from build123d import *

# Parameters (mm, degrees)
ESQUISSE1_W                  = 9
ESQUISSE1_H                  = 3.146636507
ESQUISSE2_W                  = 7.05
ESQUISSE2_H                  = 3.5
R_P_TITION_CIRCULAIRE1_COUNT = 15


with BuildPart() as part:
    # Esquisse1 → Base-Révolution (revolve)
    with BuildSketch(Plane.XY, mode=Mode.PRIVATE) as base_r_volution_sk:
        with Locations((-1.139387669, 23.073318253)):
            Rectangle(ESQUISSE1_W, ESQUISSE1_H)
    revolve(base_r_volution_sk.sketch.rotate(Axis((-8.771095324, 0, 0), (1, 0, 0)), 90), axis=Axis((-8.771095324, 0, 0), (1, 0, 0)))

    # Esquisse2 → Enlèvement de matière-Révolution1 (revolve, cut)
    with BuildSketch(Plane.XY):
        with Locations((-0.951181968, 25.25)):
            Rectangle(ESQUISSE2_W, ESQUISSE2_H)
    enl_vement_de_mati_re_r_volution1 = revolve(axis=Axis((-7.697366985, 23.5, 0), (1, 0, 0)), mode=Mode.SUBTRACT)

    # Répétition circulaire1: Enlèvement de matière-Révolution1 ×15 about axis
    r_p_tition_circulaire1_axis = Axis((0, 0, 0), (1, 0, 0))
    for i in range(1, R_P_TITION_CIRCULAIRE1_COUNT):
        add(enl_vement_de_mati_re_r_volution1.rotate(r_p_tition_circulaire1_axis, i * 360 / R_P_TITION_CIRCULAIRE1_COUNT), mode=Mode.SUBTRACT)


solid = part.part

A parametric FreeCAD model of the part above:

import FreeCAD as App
import Part
import Sketcher

V = App.Vector
Q = App.Units.Quantity


def add_polygon(sketch, points):
    """Adds a closed chain of lines whose ends are joined by coincident constraints."""
    first, n = sketch.GeometryCount, len(points)
    for a, b in zip(points, points[1:] + points[:1]):
        sketch.addGeometry(Part.LineSegment(App.Vector(*a, 0), App.Vector(*b, 0)), False)
    for i in range(n):
        sketch.addConstraint(Sketcher.Constraint("Coincident", first + i, 2, first + (i + 1) % n, 1))

doc = App.newDocument("Part")
body = doc.addObject("PartDesign::Body", "Body")

# Sketch on XY plane
sketch1 = doc.addObject("Sketcher::SketchObject", "Sketch")
body.addObject(sketch1)
sketch1.AttachmentSupport = (doc.XY_Plane, [""])
sketch1.MapMode = "FlatFace"
add_polygon(sketch1, [(-5.6, 24.6), (-5.6, 21.5), (3.4, 21.5), (3.4, 24.6)])  # lines 0-3
sketch1.addConstraint([
    Sketcher.Constraint("Vertical", 0),
    Sketcher.Constraint("Horizontal", 1),
    Sketcher.Constraint("Vertical", 2),
    Sketcher.Constraint("Horizontal", 3),
    Sketcher.Constraint("DistanceX", 1, 1, 1, 2, Q("9 mm")),
    Sketcher.Constraint("DistanceY", -1, 1, 0, 2, Q("21.5 mm")),
    Sketcher.Constraint("DistanceY", 0, 2, 0, 1, Q("3.146637 mm")),
    Sketcher.Constraint("DistanceX", 0, 2, -1, 1, Q("5.639388 mm")),
])
revolution = doc.addObject("PartDesign::Revolution", "Revolution")
body.addObject(revolution)
revolution.Profile = sketch1
revolution.ReferenceAxis = (sketch1, ["H_Axis"])
revolution.Angle = 360

# Sketch on XY plane
sketch2 = doc.addObject("Sketcher::SketchObject", "Sketch001")
body.addObject(sketch2)
sketch2.AttachmentSupport = (doc.XY_Plane, [""])
sketch2.MapMode = "FlatFace"
add_polygon(sketch2, [(-4.5, 27), (-4.5, 23.5), (2.6, 23.5), (2.6, 27)])  # lines 0-3
sketch2.addGeometry(Part.LineSegment(V(-4.5, 23.5, 0), V(2.6, 23.5, 0)), True)  # axis
sketch2.addConstraint([
    Sketcher.Constraint("Vertical", 0),
    Sketcher.Constraint("Horizontal", 1),
    Sketcher.Constraint("Vertical", 2),
    Sketcher.Constraint("Horizontal", 3),
    Sketcher.Constraint("Horizontal", 4),
    Sketcher.Constraint("Coincident", 4, 1, 0, 2),
    Sketcher.Constraint("Vertical", 2, 2, 4, 2),
    Sketcher.Constraint("DistanceY", 0, 2, 0, 1, Q("3.5 mm")),
    Sketcher.Constraint("DistanceY", -1, 1, 2, 2, Q("27 mm")),
    Sketcher.Constraint("DistanceX", 1, 1, 1, 2, Q("7.05 mm")),
    Sketcher.Constraint("DistanceX", 0, 2, -1, 1, Q("4.476182 mm")),
])
groove = doc.addObject("PartDesign::Groove", "Groove")
body.addObject(groove)
groove.Profile = sketch2
groove.ReferenceAxis = (sketch2, ["Axis0"])
groove.Angle = 360
doc.recompute()

polarpattern = doc.addObject("PartDesign::PolarPattern", "PolarPattern")
body.addObject(polarpattern)
polarpattern.Originals = [groove]
polarpattern.Axis = (doc.X_Axis, [""])
polarpattern.Angle = 360
polarpattern.Occurrences = 15
body.Tip = polarpattern

doc.recompute()
